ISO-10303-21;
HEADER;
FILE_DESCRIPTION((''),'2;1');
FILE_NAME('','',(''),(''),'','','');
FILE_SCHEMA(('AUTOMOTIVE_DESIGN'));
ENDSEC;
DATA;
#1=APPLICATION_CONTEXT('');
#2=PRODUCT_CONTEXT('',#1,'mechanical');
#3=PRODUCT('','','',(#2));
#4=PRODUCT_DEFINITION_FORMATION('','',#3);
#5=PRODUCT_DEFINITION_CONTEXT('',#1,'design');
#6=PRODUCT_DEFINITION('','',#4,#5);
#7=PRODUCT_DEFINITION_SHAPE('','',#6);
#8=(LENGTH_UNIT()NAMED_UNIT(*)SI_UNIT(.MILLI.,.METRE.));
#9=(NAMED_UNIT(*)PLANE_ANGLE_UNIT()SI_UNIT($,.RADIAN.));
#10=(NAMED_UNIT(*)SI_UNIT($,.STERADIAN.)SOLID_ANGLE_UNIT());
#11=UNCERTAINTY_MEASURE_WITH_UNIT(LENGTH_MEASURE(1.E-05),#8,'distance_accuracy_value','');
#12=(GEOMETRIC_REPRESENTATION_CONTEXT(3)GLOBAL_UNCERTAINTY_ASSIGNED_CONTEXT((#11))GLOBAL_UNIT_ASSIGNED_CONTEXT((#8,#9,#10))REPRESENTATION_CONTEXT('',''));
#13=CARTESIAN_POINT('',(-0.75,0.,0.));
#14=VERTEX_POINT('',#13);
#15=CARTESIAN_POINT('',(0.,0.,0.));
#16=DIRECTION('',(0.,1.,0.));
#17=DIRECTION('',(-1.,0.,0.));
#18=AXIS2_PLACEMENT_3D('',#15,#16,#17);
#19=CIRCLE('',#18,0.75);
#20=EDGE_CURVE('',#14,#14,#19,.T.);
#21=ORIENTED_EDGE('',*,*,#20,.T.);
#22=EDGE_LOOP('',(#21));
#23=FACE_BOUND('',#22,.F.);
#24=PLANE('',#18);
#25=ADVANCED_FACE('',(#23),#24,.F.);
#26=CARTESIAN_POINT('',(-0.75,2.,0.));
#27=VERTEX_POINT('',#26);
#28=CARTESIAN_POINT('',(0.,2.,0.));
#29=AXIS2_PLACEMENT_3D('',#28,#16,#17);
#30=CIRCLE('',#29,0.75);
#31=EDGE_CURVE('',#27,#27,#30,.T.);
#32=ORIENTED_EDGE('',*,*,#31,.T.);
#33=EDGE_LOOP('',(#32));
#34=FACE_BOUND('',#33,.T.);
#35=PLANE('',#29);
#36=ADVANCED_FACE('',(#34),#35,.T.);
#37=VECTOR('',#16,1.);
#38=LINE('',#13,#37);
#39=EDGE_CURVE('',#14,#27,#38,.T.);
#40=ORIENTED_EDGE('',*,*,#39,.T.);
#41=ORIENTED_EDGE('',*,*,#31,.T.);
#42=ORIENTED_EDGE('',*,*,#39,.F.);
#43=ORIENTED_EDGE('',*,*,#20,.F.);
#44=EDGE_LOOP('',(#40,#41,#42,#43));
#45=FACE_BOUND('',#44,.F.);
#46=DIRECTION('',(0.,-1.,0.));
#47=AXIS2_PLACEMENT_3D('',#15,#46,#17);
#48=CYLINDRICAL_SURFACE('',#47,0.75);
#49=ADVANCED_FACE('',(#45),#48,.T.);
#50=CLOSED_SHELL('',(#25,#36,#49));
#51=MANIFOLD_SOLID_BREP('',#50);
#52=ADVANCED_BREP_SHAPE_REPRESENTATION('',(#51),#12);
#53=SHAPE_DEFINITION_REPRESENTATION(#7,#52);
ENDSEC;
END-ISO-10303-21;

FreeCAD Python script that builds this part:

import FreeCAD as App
import Part
import Sketcher
from FreeCAD import Vector
Q = App.Units.Quantity

doc = App.newDocument("Part")
body = doc.addObject("PartDesign::Body", "Body")

sketch1 = body.newObject("Sketcher::SketchObject", "Sketch")
sketch1.AttachmentSupport = (doc.getObject("XZ_Plane"), [""])
sketch1.MapMode = "FlatFace"
sketch1.addGeometry(Part.Circle(Vector(0, 0, 0), Vector(0, 0, 1), 0.8), False)
sketch1.addConstraint([
    Sketcher.Constraint("Coincident", 0, 3, -1, 1),
    Sketcher.Constraint("Diameter", 0, Q("1.5 mm")),
])
pad1 = body.newObject("PartDesign::Pad", "Pad")
pad1.Profile = sketch1
pad1.Length = 2
pad1.Reversed = True

doc.recompute()
